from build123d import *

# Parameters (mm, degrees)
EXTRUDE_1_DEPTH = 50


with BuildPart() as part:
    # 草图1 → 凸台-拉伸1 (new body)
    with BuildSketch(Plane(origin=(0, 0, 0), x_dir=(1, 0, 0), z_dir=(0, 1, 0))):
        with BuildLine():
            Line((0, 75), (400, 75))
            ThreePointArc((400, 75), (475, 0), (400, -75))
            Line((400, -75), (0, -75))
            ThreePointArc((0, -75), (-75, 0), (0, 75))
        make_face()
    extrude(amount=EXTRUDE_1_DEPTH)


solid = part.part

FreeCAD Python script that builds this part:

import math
import FreeCAD as App
import Part
import Sketcher
from FreeCAD import Vector
Q = App.Units.Quantity

doc = App.newDocument("Part")
body = doc.addObject("PartDesign::Body", "Body")

sketch1 = body.newObject("Sketcher::SketchObject", "Sketch")
sketch1.AttachmentSupport = (doc.getObject("XZ_Plane"), [""])
sketch1.MapMode = "FlatFace"
sketch1.addGeometry(Part.LineSegment(Vector(400, -75, 0), Vector(0, -75, 0)), False)
sketch1.addGeometry(Part.ArcOfCircle(Part.Circle(Vector(0, 0, 0), Vector(0, 0, 1), 75), math.radians(90), math.radians(270)), False)
sketch1.addGeometry(Part.LineSegment(Vector(0, 75, 0), Vector(400, 75, 0)), False)
sketch1.addGeometry(Part.ArcOfCircle(Part.Circle(Vector(400, 0, 0), Vector(0, 0, 1), 75), math.radians(-90), math.radians(90)), False)
sketch1.addConstraint(Sketcher.Constraint("Tangent", 0, 2, 1, 2))
sketch1.addConstraint(Sketcher.Constraint("Tangent", 1, 1, 2, 1))
sketch1.addConstraint(Sketcher.Constraint("Tangent", 2, 2, 3, 2))
sketch1.addConstraint(Sketcher.Constraint("Tangent", 3, 1, 0, 1))
sketch1.addConstraint(Sketcher.Constraint("Horizontal", 0))
sketch1.addConstraint(Sketcher.Constraint("Horizontal", 2))
sketch1.addConstraint(Sketcher.Constraint("Coincident", 1, 3, -1, 1))
sketch1.addConstraint(Sketcher.Constraint("Radius", 1, Q("75 mm")))
sketch1.addConstraint(Sketcher.Constraint("DistanceX", 0, 2, 0, 1, Q("400 mm")))
pad1 = body.newObject("PartDesign::Pad", "Pad")
pad1.Profile = sketch1
pad1.Length = 50
pad1.Reversed = True

doc.recompute()
